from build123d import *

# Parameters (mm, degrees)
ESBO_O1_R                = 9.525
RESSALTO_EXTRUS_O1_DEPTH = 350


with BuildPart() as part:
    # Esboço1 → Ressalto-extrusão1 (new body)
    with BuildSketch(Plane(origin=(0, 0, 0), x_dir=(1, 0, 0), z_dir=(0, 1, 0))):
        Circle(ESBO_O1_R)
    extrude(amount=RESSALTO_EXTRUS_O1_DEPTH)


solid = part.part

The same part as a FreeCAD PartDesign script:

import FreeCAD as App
import Part
import Sketcher
from FreeCAD import Vector

doc = App.newDocument("Part")
params = doc.addObject("Spreadsheet::Sheet", "Params")
for row, (alias, value) in enumerate([
    ("sketch1_diameter", "19.05 mm"),
    ("pad1_length", "350 mm"),
], start=1):
    params.set(f"A{row}", alias)
    params.set(f"B{row}", "=" + value)
    params.setAlias(f"B{row}", alias)

body = doc.addObject("PartDesign::Body", "Body")

# Sketch on XZ plane
sketch1 = body.newObject("Sketcher::SketchObject", "Sketch")
sketch1.AttachmentSupport = (doc.getObject("XZ_Plane"), [""])
sketch1.MapMode = "FlatFace"
sketch1.addGeometry(Part.Circle(Vector(0, 0, 0), Vector(0, 0, 1), 9.525), False)
sketch1.addConstraint([
    Sketcher.Constraint("Coincident", 0, 3, -1, 1),
    Sketcher.Constraint("Diameter", 0, 19.05),
])
sketch1.setExpression("Constraints[1]", "Params.sketch1_diameter")
pad1 = body.newObject("PartDesign::Pad", "Pad")
pad1.Profile = sketch1
pad1.setExpression("Length", "Params.pad1_length")
pad1.Reversed = True

doc.recompute()
